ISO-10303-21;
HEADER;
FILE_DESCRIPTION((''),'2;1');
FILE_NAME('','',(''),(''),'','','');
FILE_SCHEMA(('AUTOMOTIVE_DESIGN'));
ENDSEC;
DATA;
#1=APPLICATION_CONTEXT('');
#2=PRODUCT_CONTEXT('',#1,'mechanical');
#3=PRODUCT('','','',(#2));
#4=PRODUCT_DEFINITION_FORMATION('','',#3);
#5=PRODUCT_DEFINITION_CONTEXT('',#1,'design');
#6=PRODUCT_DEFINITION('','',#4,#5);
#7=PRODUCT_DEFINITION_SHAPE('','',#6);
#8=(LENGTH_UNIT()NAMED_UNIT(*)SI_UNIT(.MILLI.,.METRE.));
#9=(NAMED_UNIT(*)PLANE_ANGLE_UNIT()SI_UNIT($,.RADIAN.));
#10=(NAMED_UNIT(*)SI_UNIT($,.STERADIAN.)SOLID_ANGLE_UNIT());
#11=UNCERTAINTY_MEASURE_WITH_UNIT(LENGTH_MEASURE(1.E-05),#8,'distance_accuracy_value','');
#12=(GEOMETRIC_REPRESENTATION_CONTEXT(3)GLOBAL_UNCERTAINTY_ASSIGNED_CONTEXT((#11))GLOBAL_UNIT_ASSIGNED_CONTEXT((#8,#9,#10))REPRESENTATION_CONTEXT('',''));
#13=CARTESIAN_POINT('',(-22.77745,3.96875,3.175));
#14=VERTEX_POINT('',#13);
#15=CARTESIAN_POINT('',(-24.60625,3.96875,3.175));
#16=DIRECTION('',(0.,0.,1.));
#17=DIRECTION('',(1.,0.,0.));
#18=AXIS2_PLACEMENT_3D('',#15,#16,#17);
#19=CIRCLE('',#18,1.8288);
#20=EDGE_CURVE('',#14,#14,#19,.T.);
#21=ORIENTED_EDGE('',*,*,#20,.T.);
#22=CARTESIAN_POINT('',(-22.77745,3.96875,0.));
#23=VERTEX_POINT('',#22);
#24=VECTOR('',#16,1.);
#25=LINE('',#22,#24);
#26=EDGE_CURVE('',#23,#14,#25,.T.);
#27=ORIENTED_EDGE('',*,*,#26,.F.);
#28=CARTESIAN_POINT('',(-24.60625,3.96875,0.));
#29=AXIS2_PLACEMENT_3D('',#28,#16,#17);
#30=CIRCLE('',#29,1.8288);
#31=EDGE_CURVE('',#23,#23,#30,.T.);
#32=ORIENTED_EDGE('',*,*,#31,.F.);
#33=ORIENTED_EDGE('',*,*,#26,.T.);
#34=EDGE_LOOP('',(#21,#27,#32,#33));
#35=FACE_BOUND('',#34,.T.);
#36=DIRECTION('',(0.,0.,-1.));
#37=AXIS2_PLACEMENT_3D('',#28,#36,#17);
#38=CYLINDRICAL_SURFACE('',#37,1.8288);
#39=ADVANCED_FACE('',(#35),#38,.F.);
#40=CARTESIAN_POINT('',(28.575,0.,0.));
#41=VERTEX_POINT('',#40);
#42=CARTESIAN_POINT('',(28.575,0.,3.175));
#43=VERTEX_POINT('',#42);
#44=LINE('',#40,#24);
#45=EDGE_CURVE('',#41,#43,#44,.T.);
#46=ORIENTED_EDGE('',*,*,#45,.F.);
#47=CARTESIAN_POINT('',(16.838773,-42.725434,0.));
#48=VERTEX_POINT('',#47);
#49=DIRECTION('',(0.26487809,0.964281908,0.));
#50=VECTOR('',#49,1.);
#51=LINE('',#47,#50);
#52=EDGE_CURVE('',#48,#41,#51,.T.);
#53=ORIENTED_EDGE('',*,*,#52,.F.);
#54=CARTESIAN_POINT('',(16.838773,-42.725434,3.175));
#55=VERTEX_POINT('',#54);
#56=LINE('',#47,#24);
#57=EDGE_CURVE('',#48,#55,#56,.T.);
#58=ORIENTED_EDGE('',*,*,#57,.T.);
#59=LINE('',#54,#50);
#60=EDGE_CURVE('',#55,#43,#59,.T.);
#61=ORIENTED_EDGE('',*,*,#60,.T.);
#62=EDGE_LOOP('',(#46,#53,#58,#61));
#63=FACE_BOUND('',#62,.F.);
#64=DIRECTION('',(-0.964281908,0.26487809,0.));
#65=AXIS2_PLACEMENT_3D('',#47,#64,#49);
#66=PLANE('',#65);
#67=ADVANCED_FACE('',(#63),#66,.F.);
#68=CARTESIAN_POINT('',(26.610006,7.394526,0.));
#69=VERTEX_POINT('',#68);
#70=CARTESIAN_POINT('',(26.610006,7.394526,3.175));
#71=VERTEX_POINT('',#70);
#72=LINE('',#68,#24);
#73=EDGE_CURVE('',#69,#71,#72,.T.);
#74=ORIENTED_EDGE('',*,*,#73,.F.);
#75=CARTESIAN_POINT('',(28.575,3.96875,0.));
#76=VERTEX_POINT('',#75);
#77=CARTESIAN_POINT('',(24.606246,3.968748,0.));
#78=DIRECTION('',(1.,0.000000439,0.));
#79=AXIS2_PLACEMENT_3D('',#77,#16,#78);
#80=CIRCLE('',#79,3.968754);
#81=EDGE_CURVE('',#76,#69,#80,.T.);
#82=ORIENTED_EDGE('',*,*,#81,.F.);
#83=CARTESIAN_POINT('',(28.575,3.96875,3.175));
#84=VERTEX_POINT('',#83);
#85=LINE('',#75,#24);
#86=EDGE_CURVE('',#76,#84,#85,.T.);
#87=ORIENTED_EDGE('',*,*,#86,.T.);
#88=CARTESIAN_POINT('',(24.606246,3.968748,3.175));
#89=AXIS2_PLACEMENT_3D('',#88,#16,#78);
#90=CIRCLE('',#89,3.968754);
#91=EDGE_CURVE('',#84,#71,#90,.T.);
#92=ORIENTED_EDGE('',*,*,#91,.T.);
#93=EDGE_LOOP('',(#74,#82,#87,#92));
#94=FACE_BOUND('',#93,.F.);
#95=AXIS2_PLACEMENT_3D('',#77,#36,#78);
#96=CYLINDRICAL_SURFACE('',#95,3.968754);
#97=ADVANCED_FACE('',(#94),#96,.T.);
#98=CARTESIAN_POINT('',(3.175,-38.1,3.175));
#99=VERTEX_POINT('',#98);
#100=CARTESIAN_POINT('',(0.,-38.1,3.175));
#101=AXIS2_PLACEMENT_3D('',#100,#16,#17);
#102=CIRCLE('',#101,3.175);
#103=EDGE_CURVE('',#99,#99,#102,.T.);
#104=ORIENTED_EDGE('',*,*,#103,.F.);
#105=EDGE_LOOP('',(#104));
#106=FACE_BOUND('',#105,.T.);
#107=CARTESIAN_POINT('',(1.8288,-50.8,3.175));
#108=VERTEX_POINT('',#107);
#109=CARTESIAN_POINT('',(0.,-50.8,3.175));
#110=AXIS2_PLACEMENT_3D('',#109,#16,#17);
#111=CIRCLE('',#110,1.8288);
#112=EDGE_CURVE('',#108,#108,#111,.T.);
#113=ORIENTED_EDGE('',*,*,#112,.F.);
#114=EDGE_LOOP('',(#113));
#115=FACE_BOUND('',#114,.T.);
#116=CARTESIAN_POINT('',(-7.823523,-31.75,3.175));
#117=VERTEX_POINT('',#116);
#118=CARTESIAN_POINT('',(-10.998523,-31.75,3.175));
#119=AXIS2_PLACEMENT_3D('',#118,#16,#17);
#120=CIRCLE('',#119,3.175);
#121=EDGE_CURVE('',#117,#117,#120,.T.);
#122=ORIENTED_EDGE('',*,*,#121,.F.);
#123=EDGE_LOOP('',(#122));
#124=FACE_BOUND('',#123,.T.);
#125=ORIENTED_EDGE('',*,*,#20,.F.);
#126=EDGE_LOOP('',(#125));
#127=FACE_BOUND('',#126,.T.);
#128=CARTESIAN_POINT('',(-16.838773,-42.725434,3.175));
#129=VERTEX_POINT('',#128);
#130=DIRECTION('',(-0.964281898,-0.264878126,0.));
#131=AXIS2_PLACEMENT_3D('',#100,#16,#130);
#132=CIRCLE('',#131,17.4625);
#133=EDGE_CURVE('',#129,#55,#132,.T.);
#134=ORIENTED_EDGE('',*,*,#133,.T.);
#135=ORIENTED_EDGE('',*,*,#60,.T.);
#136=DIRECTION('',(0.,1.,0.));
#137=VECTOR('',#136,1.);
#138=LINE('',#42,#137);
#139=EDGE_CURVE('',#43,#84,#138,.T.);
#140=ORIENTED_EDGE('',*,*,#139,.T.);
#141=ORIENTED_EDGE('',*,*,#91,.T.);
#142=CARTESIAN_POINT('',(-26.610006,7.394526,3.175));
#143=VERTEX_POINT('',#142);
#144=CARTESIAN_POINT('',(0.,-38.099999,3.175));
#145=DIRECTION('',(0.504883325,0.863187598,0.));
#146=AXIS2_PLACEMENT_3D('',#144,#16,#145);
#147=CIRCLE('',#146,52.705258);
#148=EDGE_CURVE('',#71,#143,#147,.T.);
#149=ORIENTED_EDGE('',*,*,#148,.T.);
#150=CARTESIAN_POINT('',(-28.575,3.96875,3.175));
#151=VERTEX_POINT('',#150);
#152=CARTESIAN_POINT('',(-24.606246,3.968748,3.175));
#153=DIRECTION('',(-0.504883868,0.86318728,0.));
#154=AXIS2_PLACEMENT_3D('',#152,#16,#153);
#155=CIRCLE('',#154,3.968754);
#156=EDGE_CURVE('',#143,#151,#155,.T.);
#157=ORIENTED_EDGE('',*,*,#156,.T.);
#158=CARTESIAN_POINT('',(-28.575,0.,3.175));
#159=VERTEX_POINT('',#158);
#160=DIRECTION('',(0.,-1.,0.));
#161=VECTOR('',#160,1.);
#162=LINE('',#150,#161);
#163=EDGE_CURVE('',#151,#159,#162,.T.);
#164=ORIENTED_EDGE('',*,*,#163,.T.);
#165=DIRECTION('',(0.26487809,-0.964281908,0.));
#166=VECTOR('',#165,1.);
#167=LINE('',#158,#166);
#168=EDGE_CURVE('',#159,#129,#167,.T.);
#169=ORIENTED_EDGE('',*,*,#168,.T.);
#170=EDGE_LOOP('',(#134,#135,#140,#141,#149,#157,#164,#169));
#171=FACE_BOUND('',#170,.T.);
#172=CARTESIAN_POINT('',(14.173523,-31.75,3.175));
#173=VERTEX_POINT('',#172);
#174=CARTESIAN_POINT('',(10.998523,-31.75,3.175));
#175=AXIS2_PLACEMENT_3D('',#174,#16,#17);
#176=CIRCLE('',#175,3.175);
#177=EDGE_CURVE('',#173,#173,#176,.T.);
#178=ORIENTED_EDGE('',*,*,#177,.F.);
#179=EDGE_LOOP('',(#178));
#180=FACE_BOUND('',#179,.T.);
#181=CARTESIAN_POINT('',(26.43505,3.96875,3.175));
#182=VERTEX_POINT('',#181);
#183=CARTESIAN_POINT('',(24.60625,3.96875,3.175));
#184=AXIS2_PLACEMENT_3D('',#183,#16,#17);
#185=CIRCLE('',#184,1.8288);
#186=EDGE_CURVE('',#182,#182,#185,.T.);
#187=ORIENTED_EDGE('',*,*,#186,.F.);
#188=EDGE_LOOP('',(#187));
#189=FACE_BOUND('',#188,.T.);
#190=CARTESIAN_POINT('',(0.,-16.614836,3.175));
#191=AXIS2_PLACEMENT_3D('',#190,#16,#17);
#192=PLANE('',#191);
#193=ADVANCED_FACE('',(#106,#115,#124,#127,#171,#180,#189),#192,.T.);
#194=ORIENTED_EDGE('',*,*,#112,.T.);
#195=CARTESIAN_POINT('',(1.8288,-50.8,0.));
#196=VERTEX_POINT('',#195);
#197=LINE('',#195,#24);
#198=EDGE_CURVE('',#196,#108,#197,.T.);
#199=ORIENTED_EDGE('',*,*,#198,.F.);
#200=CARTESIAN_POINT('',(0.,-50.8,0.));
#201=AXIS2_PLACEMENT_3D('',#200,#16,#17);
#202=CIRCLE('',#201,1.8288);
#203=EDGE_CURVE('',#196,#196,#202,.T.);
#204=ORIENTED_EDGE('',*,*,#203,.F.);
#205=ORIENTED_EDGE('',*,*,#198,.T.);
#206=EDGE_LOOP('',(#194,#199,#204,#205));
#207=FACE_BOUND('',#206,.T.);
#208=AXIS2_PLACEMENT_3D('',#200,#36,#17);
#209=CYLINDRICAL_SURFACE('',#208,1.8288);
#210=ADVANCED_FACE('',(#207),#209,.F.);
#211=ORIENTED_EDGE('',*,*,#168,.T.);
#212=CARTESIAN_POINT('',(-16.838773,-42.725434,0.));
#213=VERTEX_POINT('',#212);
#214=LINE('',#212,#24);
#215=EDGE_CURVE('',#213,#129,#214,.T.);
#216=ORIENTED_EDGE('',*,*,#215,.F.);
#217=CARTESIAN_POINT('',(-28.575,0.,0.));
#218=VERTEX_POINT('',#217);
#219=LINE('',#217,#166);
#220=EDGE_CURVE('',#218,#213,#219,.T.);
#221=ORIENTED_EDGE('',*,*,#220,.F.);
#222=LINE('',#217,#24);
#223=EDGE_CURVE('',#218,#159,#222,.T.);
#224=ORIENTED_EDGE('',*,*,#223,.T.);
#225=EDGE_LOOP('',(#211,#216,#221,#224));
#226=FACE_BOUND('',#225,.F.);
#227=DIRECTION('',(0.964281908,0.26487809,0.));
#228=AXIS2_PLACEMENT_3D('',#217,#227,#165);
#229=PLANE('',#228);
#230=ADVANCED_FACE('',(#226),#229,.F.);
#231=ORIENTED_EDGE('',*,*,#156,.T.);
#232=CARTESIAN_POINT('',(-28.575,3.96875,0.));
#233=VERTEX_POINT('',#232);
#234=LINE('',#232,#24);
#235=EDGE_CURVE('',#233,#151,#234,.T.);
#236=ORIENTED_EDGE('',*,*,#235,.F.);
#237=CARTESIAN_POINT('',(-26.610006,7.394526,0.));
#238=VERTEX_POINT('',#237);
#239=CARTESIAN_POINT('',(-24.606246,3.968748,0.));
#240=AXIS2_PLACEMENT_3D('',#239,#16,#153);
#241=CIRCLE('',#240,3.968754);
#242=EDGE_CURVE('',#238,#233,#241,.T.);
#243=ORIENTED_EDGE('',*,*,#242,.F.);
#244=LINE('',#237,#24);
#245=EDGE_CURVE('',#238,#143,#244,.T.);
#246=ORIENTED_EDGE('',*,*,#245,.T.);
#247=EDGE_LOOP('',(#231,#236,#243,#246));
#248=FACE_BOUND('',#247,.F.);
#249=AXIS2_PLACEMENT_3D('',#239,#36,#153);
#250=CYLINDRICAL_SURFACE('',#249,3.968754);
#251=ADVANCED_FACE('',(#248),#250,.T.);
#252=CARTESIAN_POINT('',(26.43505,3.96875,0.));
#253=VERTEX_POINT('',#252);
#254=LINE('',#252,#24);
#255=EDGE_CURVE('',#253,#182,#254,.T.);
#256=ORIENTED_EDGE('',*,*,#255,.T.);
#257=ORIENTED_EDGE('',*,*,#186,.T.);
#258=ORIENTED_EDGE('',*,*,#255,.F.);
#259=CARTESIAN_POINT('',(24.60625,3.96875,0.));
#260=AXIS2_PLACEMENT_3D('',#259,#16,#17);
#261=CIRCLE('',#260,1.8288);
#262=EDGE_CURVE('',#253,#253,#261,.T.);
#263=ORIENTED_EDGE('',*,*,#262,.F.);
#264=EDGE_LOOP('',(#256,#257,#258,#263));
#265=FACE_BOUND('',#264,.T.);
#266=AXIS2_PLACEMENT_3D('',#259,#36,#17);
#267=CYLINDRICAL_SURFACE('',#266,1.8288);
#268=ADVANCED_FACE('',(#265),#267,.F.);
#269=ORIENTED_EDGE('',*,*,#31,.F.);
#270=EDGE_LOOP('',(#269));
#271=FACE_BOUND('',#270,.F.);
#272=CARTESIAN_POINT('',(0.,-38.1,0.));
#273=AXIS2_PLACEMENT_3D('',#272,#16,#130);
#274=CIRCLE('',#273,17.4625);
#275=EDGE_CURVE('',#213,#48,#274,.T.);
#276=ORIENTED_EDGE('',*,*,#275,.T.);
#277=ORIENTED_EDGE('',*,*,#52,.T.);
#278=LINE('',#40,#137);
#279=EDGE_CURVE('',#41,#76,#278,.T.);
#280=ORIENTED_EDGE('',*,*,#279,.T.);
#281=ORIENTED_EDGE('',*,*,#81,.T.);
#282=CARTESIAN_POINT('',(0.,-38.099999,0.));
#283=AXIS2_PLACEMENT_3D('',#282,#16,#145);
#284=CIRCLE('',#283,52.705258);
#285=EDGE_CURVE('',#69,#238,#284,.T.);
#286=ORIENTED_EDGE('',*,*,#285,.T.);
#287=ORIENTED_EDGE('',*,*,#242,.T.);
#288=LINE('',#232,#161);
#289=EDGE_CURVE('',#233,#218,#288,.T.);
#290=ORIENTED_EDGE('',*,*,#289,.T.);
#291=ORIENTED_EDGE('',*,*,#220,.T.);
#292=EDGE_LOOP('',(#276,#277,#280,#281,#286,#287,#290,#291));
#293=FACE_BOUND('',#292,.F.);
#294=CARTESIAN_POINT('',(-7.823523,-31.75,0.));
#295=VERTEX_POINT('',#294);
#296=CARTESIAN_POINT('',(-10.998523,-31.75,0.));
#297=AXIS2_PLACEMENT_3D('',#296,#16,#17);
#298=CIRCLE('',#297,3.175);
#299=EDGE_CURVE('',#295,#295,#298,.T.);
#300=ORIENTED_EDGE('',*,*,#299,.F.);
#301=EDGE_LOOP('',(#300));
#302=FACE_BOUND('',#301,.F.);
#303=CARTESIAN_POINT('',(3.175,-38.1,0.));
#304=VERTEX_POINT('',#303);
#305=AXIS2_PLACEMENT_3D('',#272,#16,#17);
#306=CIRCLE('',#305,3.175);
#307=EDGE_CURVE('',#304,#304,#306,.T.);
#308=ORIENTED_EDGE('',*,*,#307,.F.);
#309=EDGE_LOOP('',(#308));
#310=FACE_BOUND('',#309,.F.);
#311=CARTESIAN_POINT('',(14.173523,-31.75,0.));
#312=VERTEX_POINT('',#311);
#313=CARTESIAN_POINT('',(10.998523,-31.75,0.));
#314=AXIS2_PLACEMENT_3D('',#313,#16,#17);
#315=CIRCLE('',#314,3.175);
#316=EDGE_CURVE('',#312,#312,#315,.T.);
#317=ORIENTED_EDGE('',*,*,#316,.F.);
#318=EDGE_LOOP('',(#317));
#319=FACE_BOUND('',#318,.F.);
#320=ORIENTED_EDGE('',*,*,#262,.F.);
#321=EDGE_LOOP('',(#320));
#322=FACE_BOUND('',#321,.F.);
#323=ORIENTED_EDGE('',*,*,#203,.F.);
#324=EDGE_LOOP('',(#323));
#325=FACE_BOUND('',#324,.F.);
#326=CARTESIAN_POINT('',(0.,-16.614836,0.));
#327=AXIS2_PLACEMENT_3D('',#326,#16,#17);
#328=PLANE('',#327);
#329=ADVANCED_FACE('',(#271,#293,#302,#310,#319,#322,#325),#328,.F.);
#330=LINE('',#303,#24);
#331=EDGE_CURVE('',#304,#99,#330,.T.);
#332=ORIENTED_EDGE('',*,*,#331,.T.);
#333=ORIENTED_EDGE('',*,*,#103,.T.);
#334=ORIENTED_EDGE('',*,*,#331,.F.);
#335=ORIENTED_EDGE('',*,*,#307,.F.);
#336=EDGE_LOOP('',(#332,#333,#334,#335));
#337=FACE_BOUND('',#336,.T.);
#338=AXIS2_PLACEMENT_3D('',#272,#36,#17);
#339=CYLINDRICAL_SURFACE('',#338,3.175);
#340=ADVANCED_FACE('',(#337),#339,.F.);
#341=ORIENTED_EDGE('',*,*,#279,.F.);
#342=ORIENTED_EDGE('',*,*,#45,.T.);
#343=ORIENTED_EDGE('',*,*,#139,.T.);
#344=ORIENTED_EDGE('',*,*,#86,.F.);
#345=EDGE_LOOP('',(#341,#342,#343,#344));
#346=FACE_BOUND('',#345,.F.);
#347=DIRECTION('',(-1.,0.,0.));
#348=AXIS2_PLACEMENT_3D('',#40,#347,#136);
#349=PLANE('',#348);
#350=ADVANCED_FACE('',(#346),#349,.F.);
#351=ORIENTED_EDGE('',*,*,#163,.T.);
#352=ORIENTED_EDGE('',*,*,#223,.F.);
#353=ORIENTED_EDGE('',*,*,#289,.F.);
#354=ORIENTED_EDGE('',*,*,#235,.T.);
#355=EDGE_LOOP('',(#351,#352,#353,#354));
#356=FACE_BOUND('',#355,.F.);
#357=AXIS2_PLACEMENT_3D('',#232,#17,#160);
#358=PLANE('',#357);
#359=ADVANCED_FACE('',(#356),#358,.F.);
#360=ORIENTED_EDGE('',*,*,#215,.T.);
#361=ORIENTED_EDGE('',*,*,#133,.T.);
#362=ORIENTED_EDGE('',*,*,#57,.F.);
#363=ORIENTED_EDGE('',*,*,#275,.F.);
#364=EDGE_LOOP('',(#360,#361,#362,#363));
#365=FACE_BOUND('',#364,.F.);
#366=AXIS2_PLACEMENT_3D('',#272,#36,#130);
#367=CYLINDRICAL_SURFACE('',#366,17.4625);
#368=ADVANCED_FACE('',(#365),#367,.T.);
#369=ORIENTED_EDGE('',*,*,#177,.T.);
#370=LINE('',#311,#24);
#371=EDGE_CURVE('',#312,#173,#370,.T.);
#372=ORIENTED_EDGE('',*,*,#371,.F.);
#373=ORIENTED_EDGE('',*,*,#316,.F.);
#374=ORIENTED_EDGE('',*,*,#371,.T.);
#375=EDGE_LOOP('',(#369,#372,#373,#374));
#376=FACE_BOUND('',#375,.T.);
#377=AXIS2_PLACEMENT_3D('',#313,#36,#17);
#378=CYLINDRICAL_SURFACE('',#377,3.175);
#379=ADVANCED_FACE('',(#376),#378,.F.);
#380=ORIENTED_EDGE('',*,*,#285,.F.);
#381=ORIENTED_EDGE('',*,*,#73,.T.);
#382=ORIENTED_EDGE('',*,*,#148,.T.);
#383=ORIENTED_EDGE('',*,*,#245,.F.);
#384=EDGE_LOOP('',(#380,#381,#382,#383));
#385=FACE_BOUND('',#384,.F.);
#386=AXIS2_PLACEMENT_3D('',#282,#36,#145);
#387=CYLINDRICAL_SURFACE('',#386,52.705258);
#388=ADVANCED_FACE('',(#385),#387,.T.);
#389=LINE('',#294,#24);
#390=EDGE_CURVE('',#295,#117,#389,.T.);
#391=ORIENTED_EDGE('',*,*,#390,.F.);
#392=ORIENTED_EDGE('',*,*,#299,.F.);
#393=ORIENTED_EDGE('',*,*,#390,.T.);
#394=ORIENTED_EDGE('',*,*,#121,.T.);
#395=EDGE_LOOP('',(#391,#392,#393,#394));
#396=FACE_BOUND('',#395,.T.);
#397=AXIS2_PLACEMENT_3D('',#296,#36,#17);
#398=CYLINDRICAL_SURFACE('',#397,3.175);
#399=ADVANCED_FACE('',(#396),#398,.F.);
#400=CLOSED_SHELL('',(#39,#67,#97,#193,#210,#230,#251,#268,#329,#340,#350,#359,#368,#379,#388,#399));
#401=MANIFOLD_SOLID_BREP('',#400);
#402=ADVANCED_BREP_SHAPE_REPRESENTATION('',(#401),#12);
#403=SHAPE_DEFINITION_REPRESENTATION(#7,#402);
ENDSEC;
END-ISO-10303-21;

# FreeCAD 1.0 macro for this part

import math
import FreeCAD as App
import Part
import Sketcher
from FreeCAD import Vector
Q = App.Units.Quantity

doc = App.newDocument("Part")
body = doc.addObject("PartDesign::Body", "Body")

# Sketch on XY plane
sketch1 = body.newObject("Sketcher::SketchObject", "Sketch")
sketch1.AttachmentSupport = (doc.getObject("XY_Plane"), [""])
sketch1.MapMode = "FlatFace"
sketch1.addGeometry([
    Part.LineSegment(Vector(-28.6, 0, 0), Vector(-16.8, -42.7, 0)),  # 0
    Part.ArcOfCircle(Part.Circle(Vector(0, -38.1, 0), Vector(0, 0, 1), 17.5), math.radians(-165), math.radians(-15)),  # 1
    Part.LineSegment(Vector(16.8, -42.7, 0), Vector(28.6, 0, 0)),  # 2
    Part.LineSegment(Vector(28.6, 0, 0), Vector(28.6, 4, 0)),  # 3
    Part.ArcOfCircle(Part.Circle(Vector(24.6, 4, 0), Vector(0, 0, 1), 4), math.radians(0), math.radians(60)),  # 4
    Part.ArcOfCircle(Part.Circle(Vector(0, -38.1, 0), Vector(0, 0, 1), 52.7), math.radians(60), math.radians(120)),  # 5
    Part.ArcOfCircle(Part.Circle(Vector(-24.6, 4, 0), Vector(0, 0, 1), 4), math.radians(120), math.radians(180)),  # 6
    Part.LineSegment(Vector(-28.6, 4, 0), Vector(-28.6, 0, 0)),  # 7
    Part.Circle(Vector(-11, -31.8, 0), Vector(0, 0, 1), 3.2),  # 8
    Part.Circle(Vector(0, -50.8, 0), Vector(0, 0, 1), 1.8),  # 9
    Part.Circle(Vector(0, -38.1, 0), Vector(0, 0, 1), 3.2),  # 10
    Part.Circle(Vector(11, -31.8, 0), Vector(0, 0, 1), 3.2),  # 11
    Part.Circle(Vector(-24.6, 4, 0), Vector(0, 0, 1), 1.8),  # 12
    Part.Circle(Vector(24.6, 4, 0), Vector(0, 0, 1), 1.8),  # 13
], False)
sketch1.addConstraint([
    Sketcher.Constraint("Tangent", 0, 2, 1, 1),
    Sketcher.Constraint("Tangent", 1, 2, 2, 1),
    Sketcher.Constraint("Coincident", 2, 2, 3, 1),
    Sketcher.Constraint("Tangent", 3, 2, 4, 1),
    Sketcher.Constraint("Tangent", 4, 2, 5, 1),
    Sketcher.Constraint("Tangent", 5, 2, 6, 1),
    Sketcher.Constraint("Tangent", 6, 2, 7, 1),
    Sketcher.Constraint("Coincident", 7, 2, 0, 1),
    Sketcher.Constraint("Vertical", 3),
    Sketcher.Constraint("Vertical", 7),
    Sketcher.Constraint("Coincident", 5, 3, 1, 3),
    Sketcher.Constraint("Coincident", 10, 3, 1, 3),
    Sketcher.Constraint("Coincident", 12, 3, 6, 3),
    Sketcher.Constraint("Coincident", 13, 3, 4, 3),
    Sketcher.Constraint("Equal", 4, 6),
    Sketcher.Constraint("Equal", 8, 10),
    Sketcher.Constraint("Equal", 10, 11),
    Sketcher.Constraint("Equal", 9, 12),
    Sketcher.Constraint("Equal", 12, 13),
    Sketcher.Constraint("Symmetric", 2, 2, 7, 2, -1, 1),
    Sketcher.Constraint("Symmetric", 8, 3, 11, 3, -2),
    Sketcher.Constraint("Symmetric", 0, 2, 1, 2, -2),
    Sketcher.Constraint("PointOnObject", 9, 3, -2),
    Sketcher.Constraint("Diameter", 8, Q("0.25 in")),
    Sketcher.Constraint("Diameter", 9, Q("0.144 in")),
    Sketcher.Constraint("DistanceY", 9, 3, -1, 1, Q("2 in")),
    Sketcher.Constraint("Radius", 1, Q("0.6875 in")),
    Sketcher.Constraint("Radius", 4, Q("0.1562501 in")),
    Sketcher.Constraint("DistanceY", 1, 3, -1, 1, Q("1.5 in")),
    Sketcher.Constraint("DistanceY", 3, 1, 3, 2, Q("0.15625 in")),
    Sketcher.Constraint("DistanceY", 8, 3, -1, 1, Q("1.25 in")),
    Sketcher.Constraint("DistanceX", -1, 1, 4, 3, Q("0.9687499 in")),
    Sketcher.Constraint("DistanceX", 8, 3, 4, 3, 35.604769),
])
pad1 = body.newObject("PartDesign::Pad", "Pad")
pad1.Profile = sketch1
pad1.Length = Q("0.125 in")

doc.recompute()
